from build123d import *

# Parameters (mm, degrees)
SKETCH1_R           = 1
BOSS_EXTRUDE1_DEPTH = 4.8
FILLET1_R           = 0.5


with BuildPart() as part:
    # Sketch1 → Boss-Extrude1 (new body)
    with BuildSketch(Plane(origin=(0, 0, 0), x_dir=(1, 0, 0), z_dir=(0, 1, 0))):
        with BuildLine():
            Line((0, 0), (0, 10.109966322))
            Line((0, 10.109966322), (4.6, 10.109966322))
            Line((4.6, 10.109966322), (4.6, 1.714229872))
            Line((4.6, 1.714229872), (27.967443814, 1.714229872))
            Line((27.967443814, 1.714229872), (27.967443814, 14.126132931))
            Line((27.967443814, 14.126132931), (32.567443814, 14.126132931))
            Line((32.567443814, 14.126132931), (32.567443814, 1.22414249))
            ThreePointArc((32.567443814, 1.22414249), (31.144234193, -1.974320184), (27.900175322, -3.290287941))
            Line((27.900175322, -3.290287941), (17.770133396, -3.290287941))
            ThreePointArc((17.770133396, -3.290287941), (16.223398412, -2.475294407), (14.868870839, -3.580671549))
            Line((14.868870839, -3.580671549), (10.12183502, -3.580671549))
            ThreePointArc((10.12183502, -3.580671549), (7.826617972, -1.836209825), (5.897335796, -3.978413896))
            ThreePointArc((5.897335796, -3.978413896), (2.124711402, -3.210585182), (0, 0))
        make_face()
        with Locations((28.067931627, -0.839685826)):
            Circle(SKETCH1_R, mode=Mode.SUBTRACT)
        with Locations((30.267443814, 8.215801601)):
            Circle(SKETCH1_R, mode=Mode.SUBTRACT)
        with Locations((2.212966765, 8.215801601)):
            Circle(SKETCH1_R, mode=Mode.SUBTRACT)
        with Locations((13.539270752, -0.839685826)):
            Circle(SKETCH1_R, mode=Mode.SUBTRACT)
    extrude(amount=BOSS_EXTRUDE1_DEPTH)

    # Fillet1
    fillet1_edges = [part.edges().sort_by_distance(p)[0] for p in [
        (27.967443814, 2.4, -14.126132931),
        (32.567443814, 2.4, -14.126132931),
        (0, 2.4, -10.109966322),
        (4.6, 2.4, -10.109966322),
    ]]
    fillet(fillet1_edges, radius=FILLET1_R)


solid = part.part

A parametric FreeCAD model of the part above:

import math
import FreeCAD as App
import Part
import Sketcher
from FreeCAD import Vector


def edges_at(feature, points):
    """Names of the edges that pass closest to the given points."""
    edges = feature.Shape.Edges
    near = lambda p: min(range(len(edges)), key=lambda i: edges[i].distToShape(Part.Vertex(*p))[0])
    return sorted({f"Edge{near(p) + 1}" for p in points})

doc = App.newDocument("Part")
body = doc.addObject("PartDesign::Body", "Body")

# Sketch on XZ plane
sketch1 = body.newObject("Sketcher::SketchObject", "Sketch")
sketch1.AttachmentSupport = (doc.getObject("XZ_Plane"), [""])
sketch1.MapMode = "FlatFace"
sketch1.addGeometry(Part.LineSegment(Vector(0, -10.1, 0), Vector(0, 0, 0)), False)
sketch1.addGeometry(Part.ArcOfCircle(Part.Circle(Vector(4.9, -1, 0), Vector(0, 0, 1), 5), math.radians(79), math.radians(169)), False)
sketch1.addGeometry(Part.ArcOfCircle(Part.Circle(Vector(8, 4, 0), Vector(0, 0, 1), 2.1), math.radians(179), math.radians(350)), False)
sketch1.addGeometry(Part.LineSegment(Vector(10.1, 3.6, 0), Vector(14.9, 3.6, 0)), False)
sketch1.addGeometry(Part.ArcOfCircle(Part.Circle(Vector(16.4, 4.1, 0), Vector(0, 0, 1), 1.6), math.radians(-163), math.radians(-29)), False)
sketch1.addGeometry(Part.LineSegment(Vector(17.8, 3.3, 0), Vector(27.9, 3.3, 0)), False)
sketch1.addGeometry(Part.ArcOfCircle(Part.Circle(Vector(27.9, -1.4, 0), Vector(0, 0, 1), 4.7), math.radians(2), math.radians(90)), False)
sketch1.addGeometry(Part.LineSegment(Vector(32.6, -1.2, 0), Vector(32.6, -14.1, 0)), False)
sketch1.addGeometry(Part.LineSegment(Vector(32.6, -14.1, 0), Vector(28, -14.1, 0)), False)
sketch1.addGeometry(Part.LineSegment(Vector(28, -14.1, 0), Vector(28, -1.7, 0)), False)
sketch1.addGeometry(Part.LineSegment(Vector(28, -1.7, 0), Vector(4.6, -1.7, 0)), False)
sketch1.addGeometry(Part.LineSegment(Vector(4.6, -1.7, 0), Vector(4.6, -10.1, 0)), False)
sketch1.addGeometry(Part.LineSegment(Vector(4.6, -10.1, 0), Vector(0, -10.1, 0)), False)
sketch1.addGeometry(Part.Circle(Vector(28.1, 0.8, 0), Vector(0, 0, 1), 1), False)
sketch1.addGeometry(Part.Circle(Vector(13.5, 0.8, 0), Vector(0, 0, 1), 1), False)
sketch1.addGeometry(Part.Circle(Vector(30.3, -8.2, 0), Vector(0, 0, 1), 1), False)
sketch1.addGeometry(Part.Circle(Vector(2.2, -8.2, 0), Vector(0, 0, 1), 1), False)
sketch1.addConstraint(Sketcher.Constraint("Coincident", 0, 2, 1, 2))
sketch1.addConstraint(Sketcher.Constraint("Coincident", 1, 1, 2, 1))
sketch1.addConstraint(Sketcher.Constraint("Coincident", 2, 2, 3, 1))
sketch1.addConstraint(Sketcher.Constraint("Coincident", 3, 2, 4, 1))
sketch1.addConstraint(Sketcher.Constraint("Coincident", 4, 2, 5, 1))
sketch1.addConstraint(Sketcher.Constraint("Coincident", 5, 2, 6, 2))
sketch1.addConstraint(Sketcher.Constraint("Coincident", 6, 1, 7, 1))
sketch1.addConstraint(Sketcher.Constraint("Coincident", 7, 2, 8, 1))
sketch1.addConstraint(Sketcher.Constraint("Coincident", 8, 2, 9, 1))
sketch1.addConstraint(Sketcher.Constraint("Coincident", 9, 2, 10, 1))
sketch1.addConstraint(Sketcher.Constraint("Coincident", 10, 2, 11, 1))
sketch1.addConstraint(Sketcher.Constraint("Coincident", 11, 2, 12, 1))
sketch1.addConstraint(Sketcher.Constraint("Coincident", 12, 2, 0, 1))
sketch1.addConstraint(Sketcher.Constraint("Vertical", 0))
sketch1.addConstraint(Sketcher.Constraint("Horizontal", 3))
sketch1.addConstraint(Sketcher.Constraint("Horizontal", 5))
sketch1.addConstraint(Sketcher.Constraint("Vertical", 7))
sketch1.addConstraint(Sketcher.Constraint("Horizontal", 8))
sketch1.addConstraint(Sketcher.Constraint("Vertical", 9))
sketch1.addConstraint(Sketcher.Constraint("Horizontal", 10))
sketch1.addConstraint(Sketcher.Constraint("Vertical", 11))
sketch1.addConstraint(Sketcher.Constraint("Horizontal", 12))
sketch1.addConstraint(Sketcher.Constraint("Coincident", 0, 2, -1, 1))
sketch1.addConstraint(Sketcher.Constraint("Equal", 13, 14))
sketch1.addConstraint(Sketcher.Constraint("Equal", 14, 15))
sketch1.addConstraint(Sketcher.Constraint("Equal", 15, 16))
sketch1.addConstraint(Sketcher.Constraint("Horizontal", 13, 3, 14, 3))
sketch1.addConstraint(Sketcher.Constraint("Horizontal", 15, 3, 16, 3))
sketch1.addConstraint(Sketcher.Constraint("Equal", 8, 12))
sketch1.addConstraint(Sketcher.Constraint("Diameter", 13, 2.0))
sketch1.addConstraint(Sketcher.Constraint("DistanceX", 8, 2, 8, 1, 4.6))
sketch1.addConstraint(Sketcher.Constraint("DistanceX", 15, 3, 6, 1, 2.3))
sketch1.addConstraint(Sketcher.Constraint("Radius", 4, 1.583761))
sketch1.addConstraint(Sketcher.Constraint("Radius", 6, 4.67949))
sketch1.addConstraint(Sketcher.Constraint("Radius", 1, 5.030226))
sketch1.addConstraint(Sketcher.Constraint("Radius", 2, 2.128965))
sketch1.addConstraint(Sketcher.Constraint("DistanceX", 5, 1, 5, 2, 10.130042))
sketch1.addConstraint(Sketcher.Constraint("DistanceY", 7, 2, 7, 1, 12.90199))
sketch1.addConstraint(Sketcher.Constraint("DistanceY", -1, 1, 2, 3, 3.955801))
sketch1.addConstraint(Sketcher.Constraint("DistanceY", 15, 3, -1, 1, 8.215802))
sketch1.addConstraint(Sketcher.Constraint("DistanceX", 16, 3, 6, 3, 25.677899))
sketch1.addConstraint(Sketcher.Constraint("DistanceX", 1, 1, 2, 2, 4.224499))
sketch1.addConstraint(Sketcher.Constraint("DistanceX", 14, 3, 3, 2, 1.3296))
sketch1.addConstraint(Sketcher.Constraint("DistanceX", 2, 2, 4, 2, 7.648298))
sketch1.addConstraint(Sketcher.Constraint("DistanceX", 3, 1, 3, 2, 4.747036))
sketch1.addConstraint(Sketcher.Constraint("DistanceX", 10, 2, 10, 1, 23.367444))
sketch1.addConstraint(Sketcher.Constraint("DistanceY", 0, 1, 0, 2, 10.109966))
sketch1.addConstraint(Sketcher.Constraint("DistanceY", 9, 1, 9, 2, 12.411903))
sketch1.addConstraint(Sketcher.Constraint("DistanceY", 11, 2, 11, 1, 8.395736))
sketch1.addConstraint(Sketcher.Constraint("DistanceY", 1, 3, -1, 1, 0.959461))
sketch1.addConstraint(Sketcher.Constraint("DistanceX", -1, 1, 2, 3, 8.02618))
sketch1.addConstraint(Sketcher.Constraint("DistanceY", -1, 1, 4, 3, 4.051181))
sketch1.addConstraint(Sketcher.Constraint("DistanceX", -1, 1, 13, 3, 28.067932))
sketch1.addConstraint(Sketcher.Constraint("DistanceY", 6, 3, 13, 3, 2.228878))
pad1 = body.newObject("PartDesign::Pad", "Pad")
pad1.Profile = sketch1
pad1.Length = 4.8
pad1.Reversed = True
doc.recompute()

fillet = body.newObject("PartDesign::Fillet", "Fillet")
fillet.Base = (pad1, edges_at(pad1, [
    (27.967, 2.4, -14.126),
    (32.567, 2.4, -14.126),
    (0, 2.4, -10.11),
    (4.6, 2.4, -10.11),
]))
fillet.Radius = 0.5

doc.recompute()
